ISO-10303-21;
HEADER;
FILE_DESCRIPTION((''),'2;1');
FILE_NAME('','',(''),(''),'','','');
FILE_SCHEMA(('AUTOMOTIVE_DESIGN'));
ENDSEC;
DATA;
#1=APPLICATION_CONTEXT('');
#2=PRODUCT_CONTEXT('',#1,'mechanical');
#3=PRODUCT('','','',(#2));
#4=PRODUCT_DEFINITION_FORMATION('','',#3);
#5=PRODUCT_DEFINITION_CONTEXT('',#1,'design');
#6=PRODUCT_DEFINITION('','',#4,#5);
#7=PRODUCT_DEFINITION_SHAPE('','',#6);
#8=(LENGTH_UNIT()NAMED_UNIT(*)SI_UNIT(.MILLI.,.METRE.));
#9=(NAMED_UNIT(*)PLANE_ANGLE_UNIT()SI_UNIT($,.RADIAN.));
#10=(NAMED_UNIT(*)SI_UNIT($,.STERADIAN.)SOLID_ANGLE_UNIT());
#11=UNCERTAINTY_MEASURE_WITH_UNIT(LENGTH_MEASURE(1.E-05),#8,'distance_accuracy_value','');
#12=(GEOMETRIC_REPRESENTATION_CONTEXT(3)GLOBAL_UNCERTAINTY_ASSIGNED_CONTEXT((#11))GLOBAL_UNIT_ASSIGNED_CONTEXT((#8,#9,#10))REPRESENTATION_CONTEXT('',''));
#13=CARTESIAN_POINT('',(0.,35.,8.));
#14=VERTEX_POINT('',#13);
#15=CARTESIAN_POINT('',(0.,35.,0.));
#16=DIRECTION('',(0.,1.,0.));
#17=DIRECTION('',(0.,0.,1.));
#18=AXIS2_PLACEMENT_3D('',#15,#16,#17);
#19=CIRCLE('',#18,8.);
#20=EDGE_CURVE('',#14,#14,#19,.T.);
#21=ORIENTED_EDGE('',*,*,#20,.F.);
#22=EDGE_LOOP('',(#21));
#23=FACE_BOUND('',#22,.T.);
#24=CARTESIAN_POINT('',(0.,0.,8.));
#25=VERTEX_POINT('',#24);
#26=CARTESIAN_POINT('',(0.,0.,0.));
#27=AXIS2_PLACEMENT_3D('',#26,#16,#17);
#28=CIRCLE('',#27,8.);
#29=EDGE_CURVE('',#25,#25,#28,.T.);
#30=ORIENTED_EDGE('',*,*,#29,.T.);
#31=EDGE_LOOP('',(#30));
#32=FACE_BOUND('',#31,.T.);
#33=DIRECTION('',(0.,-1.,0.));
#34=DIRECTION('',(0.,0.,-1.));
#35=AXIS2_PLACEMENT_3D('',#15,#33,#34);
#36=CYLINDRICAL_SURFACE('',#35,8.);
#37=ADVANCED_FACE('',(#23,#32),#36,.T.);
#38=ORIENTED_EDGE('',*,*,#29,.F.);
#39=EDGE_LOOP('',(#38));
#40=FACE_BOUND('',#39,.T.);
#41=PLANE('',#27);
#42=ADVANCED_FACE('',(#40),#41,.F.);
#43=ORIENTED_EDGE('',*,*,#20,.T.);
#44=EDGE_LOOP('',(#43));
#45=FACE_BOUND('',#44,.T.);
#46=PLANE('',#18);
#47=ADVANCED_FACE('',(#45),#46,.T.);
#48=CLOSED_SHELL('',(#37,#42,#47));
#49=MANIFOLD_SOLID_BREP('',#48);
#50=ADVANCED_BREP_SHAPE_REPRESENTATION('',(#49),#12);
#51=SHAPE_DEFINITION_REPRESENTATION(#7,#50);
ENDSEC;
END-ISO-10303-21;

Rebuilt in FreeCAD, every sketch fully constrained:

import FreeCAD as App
import Part
import Sketcher
Q = App.Units.Quantity

doc = App.newDocument("Part")
body = doc.addObject("PartDesign::Body", "Body")

# Sketch on XZ plane
sketch1 = doc.addObject("Sketcher::SketchObject", "Sketch")
body.addObject(sketch1)
sketch1.AttachmentSupport = (doc.XZ_Plane, [""])
sketch1.MapMode = "FlatFace"
sketch1.addGeometry(Part.Circle(App.Vector(0, 0, 0), App.Vector(0, 0, 1), 8), False)
sketch1.addConstraint(Sketcher.Constraint("Coincident", 0, 3, -1, 1))
sketch1.addConstraint(Sketcher.Constraint("Diameter", 0, Q("16 mm")))
pad1 = doc.addObject("PartDesign::Pad", "Pad")
body.addObject(pad1)
pad1.Profile = sketch1
pad1.Length = 35
pad1.Reversed = True

doc.recompute()
